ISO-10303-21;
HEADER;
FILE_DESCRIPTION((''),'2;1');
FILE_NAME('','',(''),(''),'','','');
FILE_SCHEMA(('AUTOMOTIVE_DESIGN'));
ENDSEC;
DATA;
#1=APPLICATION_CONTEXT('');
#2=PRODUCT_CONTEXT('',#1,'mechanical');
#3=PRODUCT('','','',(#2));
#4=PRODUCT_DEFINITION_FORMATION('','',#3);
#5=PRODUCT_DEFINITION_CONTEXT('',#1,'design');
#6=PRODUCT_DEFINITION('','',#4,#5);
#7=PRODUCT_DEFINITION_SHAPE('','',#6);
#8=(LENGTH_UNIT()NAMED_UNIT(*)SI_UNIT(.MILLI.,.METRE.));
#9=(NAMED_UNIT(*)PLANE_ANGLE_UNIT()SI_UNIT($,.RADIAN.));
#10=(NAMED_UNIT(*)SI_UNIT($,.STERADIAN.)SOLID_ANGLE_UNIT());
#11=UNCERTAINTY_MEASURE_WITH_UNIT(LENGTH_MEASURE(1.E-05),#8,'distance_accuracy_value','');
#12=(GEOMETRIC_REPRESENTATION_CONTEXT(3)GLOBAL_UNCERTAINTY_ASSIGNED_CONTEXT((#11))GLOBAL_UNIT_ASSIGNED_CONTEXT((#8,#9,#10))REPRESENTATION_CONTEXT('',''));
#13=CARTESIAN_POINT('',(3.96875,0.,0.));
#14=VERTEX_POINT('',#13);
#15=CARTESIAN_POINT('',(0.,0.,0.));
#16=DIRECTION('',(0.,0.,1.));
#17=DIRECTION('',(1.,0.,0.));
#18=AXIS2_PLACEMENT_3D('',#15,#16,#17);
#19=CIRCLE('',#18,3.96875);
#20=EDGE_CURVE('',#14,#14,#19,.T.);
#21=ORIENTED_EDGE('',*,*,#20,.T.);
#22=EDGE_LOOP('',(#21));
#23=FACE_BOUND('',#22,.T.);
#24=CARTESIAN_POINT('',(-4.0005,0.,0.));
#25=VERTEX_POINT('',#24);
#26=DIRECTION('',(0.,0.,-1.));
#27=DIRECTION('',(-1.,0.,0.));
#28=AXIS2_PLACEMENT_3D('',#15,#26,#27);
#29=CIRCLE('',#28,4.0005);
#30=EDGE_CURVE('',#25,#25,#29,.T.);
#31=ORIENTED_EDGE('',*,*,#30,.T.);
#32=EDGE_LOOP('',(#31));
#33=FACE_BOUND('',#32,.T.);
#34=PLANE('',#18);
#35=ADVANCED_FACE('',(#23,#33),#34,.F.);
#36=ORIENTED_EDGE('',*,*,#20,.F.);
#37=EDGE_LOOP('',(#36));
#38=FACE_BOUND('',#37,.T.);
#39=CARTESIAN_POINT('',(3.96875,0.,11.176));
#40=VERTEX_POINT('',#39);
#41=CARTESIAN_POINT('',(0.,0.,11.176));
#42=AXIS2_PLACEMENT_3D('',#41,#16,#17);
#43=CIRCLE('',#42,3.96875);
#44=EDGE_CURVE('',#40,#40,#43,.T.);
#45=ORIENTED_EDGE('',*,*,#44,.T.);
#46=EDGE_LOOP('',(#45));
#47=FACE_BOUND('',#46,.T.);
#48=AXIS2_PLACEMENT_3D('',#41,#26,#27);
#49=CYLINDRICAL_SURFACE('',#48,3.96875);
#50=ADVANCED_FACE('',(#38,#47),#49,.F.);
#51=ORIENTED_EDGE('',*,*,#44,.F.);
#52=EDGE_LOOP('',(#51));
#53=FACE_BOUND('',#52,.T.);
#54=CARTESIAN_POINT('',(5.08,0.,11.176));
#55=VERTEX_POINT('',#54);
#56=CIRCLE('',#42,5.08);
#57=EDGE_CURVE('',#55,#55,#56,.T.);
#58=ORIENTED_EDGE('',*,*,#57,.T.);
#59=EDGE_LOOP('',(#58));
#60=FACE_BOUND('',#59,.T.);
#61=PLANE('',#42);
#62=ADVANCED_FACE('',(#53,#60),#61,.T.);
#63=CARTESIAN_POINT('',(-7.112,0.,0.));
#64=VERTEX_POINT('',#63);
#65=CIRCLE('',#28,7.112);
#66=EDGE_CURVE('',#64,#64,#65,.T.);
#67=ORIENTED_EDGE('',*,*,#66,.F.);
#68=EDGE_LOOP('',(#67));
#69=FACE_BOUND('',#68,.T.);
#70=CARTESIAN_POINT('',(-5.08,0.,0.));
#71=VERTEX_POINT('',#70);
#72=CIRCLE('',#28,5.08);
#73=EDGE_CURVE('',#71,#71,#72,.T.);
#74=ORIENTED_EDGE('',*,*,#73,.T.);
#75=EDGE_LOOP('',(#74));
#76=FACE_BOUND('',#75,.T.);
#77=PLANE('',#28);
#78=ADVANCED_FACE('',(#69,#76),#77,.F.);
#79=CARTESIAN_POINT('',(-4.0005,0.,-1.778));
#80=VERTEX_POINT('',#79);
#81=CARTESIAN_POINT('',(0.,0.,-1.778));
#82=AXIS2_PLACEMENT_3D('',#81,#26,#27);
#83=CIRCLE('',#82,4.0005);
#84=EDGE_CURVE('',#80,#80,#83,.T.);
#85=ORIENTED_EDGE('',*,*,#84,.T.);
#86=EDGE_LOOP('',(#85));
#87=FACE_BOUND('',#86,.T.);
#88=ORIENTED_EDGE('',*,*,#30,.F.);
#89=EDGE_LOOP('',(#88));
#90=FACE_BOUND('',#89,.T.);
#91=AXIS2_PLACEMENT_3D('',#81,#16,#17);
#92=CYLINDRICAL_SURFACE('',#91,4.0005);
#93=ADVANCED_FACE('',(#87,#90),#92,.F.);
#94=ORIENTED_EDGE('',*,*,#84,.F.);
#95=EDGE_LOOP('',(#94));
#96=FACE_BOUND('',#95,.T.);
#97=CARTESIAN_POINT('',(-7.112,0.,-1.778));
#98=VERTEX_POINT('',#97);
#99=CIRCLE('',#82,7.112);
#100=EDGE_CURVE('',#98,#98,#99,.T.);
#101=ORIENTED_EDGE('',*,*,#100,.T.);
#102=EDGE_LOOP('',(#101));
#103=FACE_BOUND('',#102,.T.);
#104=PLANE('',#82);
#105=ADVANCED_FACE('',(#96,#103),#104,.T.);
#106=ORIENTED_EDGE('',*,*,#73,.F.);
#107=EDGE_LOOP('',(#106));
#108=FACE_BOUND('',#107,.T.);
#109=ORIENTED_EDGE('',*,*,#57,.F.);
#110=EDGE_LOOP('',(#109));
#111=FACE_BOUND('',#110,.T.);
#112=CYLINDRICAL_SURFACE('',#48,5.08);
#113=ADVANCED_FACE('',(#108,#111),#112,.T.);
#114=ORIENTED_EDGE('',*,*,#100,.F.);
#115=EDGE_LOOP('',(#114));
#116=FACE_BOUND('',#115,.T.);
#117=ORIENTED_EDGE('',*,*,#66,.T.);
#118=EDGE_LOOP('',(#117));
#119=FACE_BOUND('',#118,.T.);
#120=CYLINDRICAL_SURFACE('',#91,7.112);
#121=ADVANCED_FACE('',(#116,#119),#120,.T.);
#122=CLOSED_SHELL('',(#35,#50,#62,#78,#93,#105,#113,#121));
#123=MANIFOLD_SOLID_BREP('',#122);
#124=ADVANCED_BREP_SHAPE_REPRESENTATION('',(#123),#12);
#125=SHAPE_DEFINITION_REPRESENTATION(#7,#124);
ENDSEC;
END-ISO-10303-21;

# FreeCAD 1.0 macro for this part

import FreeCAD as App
import Part
import Sketcher
from FreeCAD import Vector
Q = App.Units.Quantity

doc = App.newDocument("Part")
params = doc.addObject("Spreadsheet::Sheet", "Params")
for row, (alias, value) in enumerate([
    ("sketch1_diameter", "0.4 in"),
    ("sketch1_diameter2", "0.3125 in"),
    ("pad1_length", "0.44 in"),
    ("sketch2_diameter", "0.56 in"),
    ("sketch2_diameter2", "0.315 in"),
    ("pad2_length", "0.07 in"),
], start=1):
    params.set(f"A{row}", alias)
    params.set(f"B{row}", "=" + value)
    params.setAlias(f"B{row}", alias)

body = doc.addObject("PartDesign::Body", "Body")

# Sketch on XY plane
sketch1 = body.newObject("Sketcher::SketchObject", "Sketch")
sketch1.AttachmentSupport = (doc.getObject("XY_Plane"), [""])
sketch1.MapMode = "FlatFace"
sketch1.addGeometry(Part.Circle(Vector(0, 0, 0), Vector(0, 0, 1), 5.1), False)
sketch1.addGeometry(Part.Circle(Vector(0, 0, 0), Vector(0, 0, 1), 4), False)
sketch1.addConstraint(Sketcher.Constraint("Coincident", 0, 3, -1, 1))
sketch1.addConstraint(Sketcher.Constraint("Coincident", 1, 3, -1, 1))
sketch1.addConstraint(Sketcher.Constraint("Diameter", 0, Q("0.4 in")))
sketch1.addConstraint(Sketcher.Constraint("Diameter", 1, Q("0.3125 in")))
sketch1.setExpression("Constraints[2]", "Params.sketch1_diameter")
sketch1.setExpression("Constraints[3]", "Params.sketch1_diameter2")
pad1 = body.newObject("PartDesign::Pad", "Pad")
pad1.Profile = sketch1
pad1.setExpression("Length", "Params.pad1_length")

# Sketch on XY plane
sketch2 = body.newObject("Sketcher::SketchObject", "Sketch001")
sketch2.AttachmentSupport = (doc.getObject("XY_Plane"), [""])
sketch2.MapMode = "FlatFace"
sketch2.addGeometry(Part.Circle(Vector(0, 0, 0), Vector(0, 0, 1), 7.1), False)
sketch2.addGeometry(Part.Circle(Vector(0, 0, 0), Vector(0, 0, 1), 4), False)
sketch2.addConstraint(Sketcher.Constraint("Coincident", 0, 3, -1, 1))
sketch2.addConstraint(Sketcher.Constraint("Coincident", 1, 3, -1, 1))
sketch2.addConstraint(Sketcher.Constraint("Diameter", 0, Q("0.56 in")))
sketch2.addConstraint(Sketcher.Constraint("Diameter", 1, Q("0.315 in")))
sketch2.setExpression("Constraints[2]", "Params.sketch2_diameter")
sketch2.setExpression("Constraints[3]", "Params.sketch2_diameter2")
pad2 = body.newObject("PartDesign::Pad", "Pad001")
pad2.Profile = sketch2
pad2.setExpression("Length", "Params.pad2_length")
pad2.Reversed = True

doc.recompute()
